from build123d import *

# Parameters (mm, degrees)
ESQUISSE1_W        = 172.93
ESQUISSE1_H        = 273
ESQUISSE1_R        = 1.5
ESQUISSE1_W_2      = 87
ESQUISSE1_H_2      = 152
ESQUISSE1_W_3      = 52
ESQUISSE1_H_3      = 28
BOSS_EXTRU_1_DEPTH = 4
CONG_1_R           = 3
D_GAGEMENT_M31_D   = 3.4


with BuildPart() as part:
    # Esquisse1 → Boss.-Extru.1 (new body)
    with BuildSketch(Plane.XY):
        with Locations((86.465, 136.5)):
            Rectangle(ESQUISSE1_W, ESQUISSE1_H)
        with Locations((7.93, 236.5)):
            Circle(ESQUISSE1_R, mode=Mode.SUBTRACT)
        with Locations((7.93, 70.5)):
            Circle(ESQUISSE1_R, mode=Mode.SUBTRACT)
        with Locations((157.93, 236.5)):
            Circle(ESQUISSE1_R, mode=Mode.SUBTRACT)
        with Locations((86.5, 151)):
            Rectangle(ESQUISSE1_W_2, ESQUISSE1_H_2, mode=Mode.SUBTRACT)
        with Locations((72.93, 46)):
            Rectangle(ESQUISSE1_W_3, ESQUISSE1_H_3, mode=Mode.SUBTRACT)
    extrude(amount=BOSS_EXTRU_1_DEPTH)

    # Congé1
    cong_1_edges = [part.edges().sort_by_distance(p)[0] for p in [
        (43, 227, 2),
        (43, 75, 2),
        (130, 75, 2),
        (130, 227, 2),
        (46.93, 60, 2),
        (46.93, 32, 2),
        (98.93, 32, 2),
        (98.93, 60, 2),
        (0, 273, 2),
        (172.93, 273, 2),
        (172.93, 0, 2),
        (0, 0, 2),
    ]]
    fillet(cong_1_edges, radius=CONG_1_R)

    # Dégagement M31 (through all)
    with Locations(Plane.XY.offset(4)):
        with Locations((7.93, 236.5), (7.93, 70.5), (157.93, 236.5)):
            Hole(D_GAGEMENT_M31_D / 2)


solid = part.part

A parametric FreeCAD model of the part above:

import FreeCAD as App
import Part
import Sketcher


def edges_at(feature, points):
    """Names of the edges that pass closest to the given points."""
    edges = feature.Shape.Edges
    near = lambda p: min(range(len(edges)), key=lambda i: edges[i].distToShape(Part.Vertex(*p))[0])
    return sorted({f"Edge{near(p) + 1}" for p in points})

doc = App.newDocument("Part")
params = doc.addObject("Spreadsheet::Sheet", "Params")
for row, (alias, value) in enumerate([
    ("sketch1_diameter", "3 mm"),
    ("sketch1_width", "52 mm"),
    ("sketch1_width2", "87 mm"),
    ("sketch1_height", "273 mm"),
    ("sketch1_height2", "28 mm"),
    ("pad1_length", "4 mm"),
    ("fillet_radius", "3 mm"),
    ("sketch2_diameter", "3.4 mm"),
    ("hole_diameter", "3.4 mm"),
], start=1):
    params.set(f"A{row}", alias)
    params.set(f"B{row}", "=" + value)
    params.setAlias(f"B{row}", alias)

body = doc.addObject("PartDesign::Body", "Body")

sketch1 = body.newObject("Sketcher::SketchObject", "Sketch")
sketch1.AttachmentSupport = (doc.getObject("XY_Plane"), [""])
sketch1.MapMode = "FlatFace"
sketch1.addGeometry([
    Part.LineSegment(App.Vector(0, 273, 0), App.Vector(0, 0, 0)),
    Part.LineSegment(App.Vector(0, 0, 0), App.Vector(172.93, 0, 0)),
    Part.LineSegment(App.Vector(172.93, 0, 0), App.Vector(172.93, 273, 0)),
    Part.LineSegment(App.Vector(172.93, 273, 0), App.Vector(0, 273, 0)),
    Part.Circle(App.Vector(7.93, 70.5, 0), App.Vector(0, 0, 1), 1.5),
    Part.LineSegment(App.Vector(98.93, 32, 0), App.Vector(46.93, 32, 0)),
    Part.LineSegment(App.Vector(46.93, 32, 0), App.Vector(46.93, 60, 0)),
    Part.LineSegment(App.Vector(46.93, 60, 0), App.Vector(98.93, 60, 0)),
    Part.LineSegment(App.Vector(98.93, 60, 0), App.Vector(98.93, 32, 0)),
    Part.Circle(App.Vector(7.93, 236.5, 0), App.Vector(0, 0, 1), 1.5),
    Part.LineSegment(App.Vector(130, 75, 0), App.Vector(43, 75, 0)),
    Part.LineSegment(App.Vector(43, 75, 0), App.Vector(43, 227, 0)),
    Part.LineSegment(App.Vector(43, 227, 0), App.Vector(130, 227, 0)),
    Part.LineSegment(App.Vector(130, 227, 0), App.Vector(130, 75, 0)),
    Part.Circle(App.Vector(157.93, 236.5, 0), App.Vector(0, 0, 1), 1.5),
], False)
sketch1.addConstraint([
    Sketcher.Constraint("Coincident", 0, 2, 1, 1),
    Sketcher.Constraint("Coincident", 1, 2, 2, 1),
    Sketcher.Constraint("Coincident", 2, 2, 3, 1),
    Sketcher.Constraint("Coincident", 3, 2, 0, 1),
    Sketcher.Constraint("Coincident", 5, 2, 6, 1),
    Sketcher.Constraint("Coincident", 6, 2, 7, 1),
    Sketcher.Constraint("Coincident", 7, 2, 8, 1),
    Sketcher.Constraint("Coincident", 8, 2, 5, 1),
    Sketcher.Constraint("Coincident", 10, 2, 11, 1),
    Sketcher.Constraint("Coincident", 11, 2, 12, 1),
    Sketcher.Constraint("Coincident", 12, 2, 13, 1),
    Sketcher.Constraint("Coincident", 13, 2, 10, 1),
    Sketcher.Constraint("Vertical", 0),
    Sketcher.Constraint("Horizontal", 1),
    Sketcher.Constraint("Vertical", 2),
    Sketcher.Constraint("Horizontal", 3),
    Sketcher.Constraint("Horizontal", 5),
    Sketcher.Constraint("Vertical", 6),
    Sketcher.Constraint("Horizontal", 7),
    Sketcher.Constraint("Vertical", 8),
    Sketcher.Constraint("Horizontal", 10),
    Sketcher.Constraint("Vertical", 11),
    Sketcher.Constraint("Horizontal", 12),
    Sketcher.Constraint("Vertical", 13),
    Sketcher.Constraint("Coincident", 0, 2, -1, 1),
    Sketcher.Constraint("Equal", 4, 9),
    Sketcher.Constraint("Equal", 9, 14),
    Sketcher.Constraint("Horizontal", 9, 3, 14, 3),
    Sketcher.Constraint("Vertical", 4, 3, 9, 3),
    Sketcher.Constraint("Diameter", 4, 3.0),
    Sketcher.Constraint("DistanceX", 5, 2, 5, 1, 52.0),
    Sketcher.Constraint("DistanceX", 10, 2, 10, 1, 87.0),
    Sketcher.Constraint("DistanceY", 0, 2, 0, 1, 273.0),
    Sketcher.Constraint("DistanceY", 6, 1, 6, 2, 28.0),
    Sketcher.Constraint("DistanceY", 11, 1, 11, 2, 152.0),
    Sketcher.Constraint("DistanceY", -1, 1, 5, 2, 32.0),
    Sketcher.Constraint("DistanceX", -1, 1, 10, 2, 43.0),
    Sketcher.Constraint("DistanceY", -1, 1, 10, 2, 75.0),
    Sketcher.Constraint("DistanceY", 4, 3, 9, 3, 166.0),
    Sketcher.Constraint("DistanceX", 9, 3, 14, 3, 150.0),
    Sketcher.Constraint("DistanceX", 4, 3, 1, 2, 165.0),
    Sketcher.Constraint("DistanceX", 4, 3, 5, 2, 39.0),
    Sketcher.Constraint("DistanceX", 1, 1, 1, 2, 172.93),
    Sketcher.Constraint("DistanceY", -1, 1, 4, 3, 70.5),
])
sketch1.setExpression("Constraints[29]", "Params.sketch1_diameter")
sketch1.setExpression("Constraints[30]", "Params.sketch1_width")
sketch1.setExpression("Constraints[31]", "Params.sketch1_width2")
sketch1.setExpression("Constraints[32]", "Params.sketch1_height")
sketch1.setExpression("Constraints[33]", "Params.sketch1_height2")
pad1 = body.newObject("PartDesign::Pad", "Pad")
pad1.Profile = sketch1
pad1.setExpression("Length", "Params.pad1_length")
doc.recompute()

fillet = body.newObject("PartDesign::Fillet", "Fillet")
fillet.Base = (pad1, edges_at(pad1, [
    (43, 227, 2),
    (43, 75, 2),
    (130, 75, 2),
    (130, 227, 2),
    (46.93, 60, 2),
    (46.93, 32, 2),
    (98.93, 32, 2),
    (98.93, 60, 2),
    (0, 273, 2),
    (172.93, 273, 2),
    (172.93, 0, 2),
    (0, 0, 2),
]))
fillet.setExpression("Radius", "Params.fillet_radius")

sketch2 = body.newObject("Sketcher::SketchObject", "Sketch001")
sketch2.AttachmentSupport = (doc.getObject("XY_Plane"), [""])
sketch2.MapMode = "FlatFace"
sketch2.AttachmentOffset = App.Placement(App.Vector(0, 0, 4), App.Rotation())
sketch2.addGeometry([
    Part.Circle(App.Vector(7.93, 236.5, 0), App.Vector(0, 0, 1), 1.7),
    Part.Circle(App.Vector(7.93, 70.5, 0), App.Vector(0, 0, 1), 1.7),
    Part.Circle(App.Vector(157.93, 236.5, 0), App.Vector(0, 0, 1), 1.7),
], False)
sketch2.addConstraint([
    Sketcher.Constraint("Equal", 0, 1),
    Sketcher.Constraint("Equal", 1, 2),
    Sketcher.Constraint("Horizontal", 0, 3, 2, 3),
    Sketcher.Constraint("Vertical", 0, 3, 1, 3),
    Sketcher.Constraint("Diameter", 0, 3.4),
    Sketcher.Constraint("DistanceY", 1, 3, 0, 3, 166.0),
    Sketcher.Constraint("DistanceX", 0, 3, 2, 3, 150.0),
    Sketcher.Constraint("DistanceY", -1, 1, 0, 3, 236.5),
    Sketcher.Constraint("DistanceX", -1, 1, 0, 3, 7.93),
])
sketch2.setExpression("Constraints[4]", "Params.sketch2_diameter")
doc.recompute()
hole = body.newObject("PartDesign::Hole", "Hole")
hole.Profile = sketch2
hole.ThreadType = "None"
hole.setExpression("Diameter", "Params.hole_diameter")
hole.DepthType = "ThroughAll"

doc.recompute()
